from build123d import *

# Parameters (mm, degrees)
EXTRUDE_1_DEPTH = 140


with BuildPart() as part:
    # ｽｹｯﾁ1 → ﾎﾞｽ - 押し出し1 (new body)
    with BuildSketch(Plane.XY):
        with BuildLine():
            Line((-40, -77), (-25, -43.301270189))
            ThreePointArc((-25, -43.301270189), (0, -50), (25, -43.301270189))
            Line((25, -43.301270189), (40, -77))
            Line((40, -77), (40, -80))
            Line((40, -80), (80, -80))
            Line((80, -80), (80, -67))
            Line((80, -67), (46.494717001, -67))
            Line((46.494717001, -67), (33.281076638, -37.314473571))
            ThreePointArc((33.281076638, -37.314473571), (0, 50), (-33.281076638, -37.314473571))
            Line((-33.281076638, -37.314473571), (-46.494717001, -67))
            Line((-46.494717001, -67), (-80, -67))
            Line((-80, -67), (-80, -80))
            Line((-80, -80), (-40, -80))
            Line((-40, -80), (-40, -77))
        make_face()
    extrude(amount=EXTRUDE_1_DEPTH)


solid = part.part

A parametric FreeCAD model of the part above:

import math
import FreeCAD as App
import Part
import Sketcher
from FreeCAD import Vector
Q = App.Units.Quantity

doc = App.newDocument("Part")
body = doc.addObject("PartDesign::Body", "Body")

# Sketch on XY plane
sketch1 = body.newObject("Sketcher::SketchObject", "Sketch")
sketch1.AttachmentSupport = (doc.getObject("XY_Plane"), [""])
sketch1.MapMode = "FlatFace"
sketch1.addGeometry([
    Part.LineSegment(Vector(-40, -77, 0), Vector(-25, -43.3, 0)),  # 0
    Part.ArcOfCircle(Part.Circle(Vector(0, 0, 0), Vector(0, 0, 1), 50), math.radians(-120), math.radians(-60)),  # 1
    Part.LineSegment(Vector(25, -43.3, 0), Vector(40, -77, 0)),  # 2
    Part.LineSegment(Vector(40, -77, 0), Vector(40, -80, 0)),  # 3
    Part.LineSegment(Vector(40, -80, 0), Vector(80, -80, 0)),  # 4
    Part.LineSegment(Vector(80, -80, 0), Vector(80, -67, 0)),  # 5
    Part.LineSegment(Vector(80, -67, 0), Vector(46.5, -67, 0)),  # 6
    Part.LineSegment(Vector(46.5, -67, 0), Vector(33.3, -37.3, 0)),  # 7
    Part.ArcOfCircle(Part.Circle(Vector(0, 0, 0), Vector(0, 0, 1), 50), math.radians(-48), math.radians(228)),  # 8
    Part.LineSegment(Vector(-33.3, -37.3, 0), Vector(-46.5, -67, 0)),  # 9
    Part.LineSegment(Vector(-46.5, -67, 0), Vector(-80, -67, 0)),  # 10
    Part.LineSegment(Vector(-80, -67, 0), Vector(-80, -80, 0)),  # 11
    Part.LineSegment(Vector(-80, -80, 0), Vector(-40, -80, 0)),  # 12
    Part.LineSegment(Vector(-40, -80, 0), Vector(-40, -77, 0)),  # 13
], False)
sketch1.addConstraint([
    Sketcher.Constraint("Coincident", 0, 2, 1, 1),
    Sketcher.Constraint("Coincident", 1, 2, 2, 1),
    Sketcher.Constraint("Coincident", 2, 2, 3, 1),
    Sketcher.Constraint("Coincident", 3, 2, 4, 1),
    Sketcher.Constraint("Coincident", 4, 2, 5, 1),
    Sketcher.Constraint("Coincident", 5, 2, 6, 1),
    Sketcher.Constraint("Coincident", 6, 2, 7, 1),
    Sketcher.Constraint("Coincident", 7, 2, 8, 1),
    Sketcher.Constraint("Coincident", 8, 2, 9, 1),
    Sketcher.Constraint("Coincident", 9, 2, 10, 1),
    Sketcher.Constraint("Coincident", 10, 2, 11, 1),
    Sketcher.Constraint("Coincident", 11, 2, 12, 1),
    Sketcher.Constraint("Coincident", 12, 2, 13, 1),
    Sketcher.Constraint("Coincident", 13, 2, 0, 1),
    Sketcher.Constraint("Vertical", 3),
    Sketcher.Constraint("Horizontal", 4),
    Sketcher.Constraint("Vertical", 5),
    Sketcher.Constraint("Horizontal", 6),
    Sketcher.Constraint("Horizontal", 10),
    Sketcher.Constraint("Vertical", 11),
    Sketcher.Constraint("Horizontal", 12),
    Sketcher.Constraint("Vertical", 13),
    Sketcher.Constraint("Coincident", 1, 3, -1, 1),
    Sketcher.Constraint("Coincident", 8, 3, -1, 1),
    Sketcher.Constraint("Equal", 1, 8),
    Sketcher.Constraint("Symmetric", 6, 2, 9, 2, -2),
    Sketcher.Constraint("Symmetric", 4, 2, 11, 2, -2),
    Sketcher.Constraint("Symmetric", 2, 2, 13, 2, -2),
    Sketcher.Constraint("Parallel", 2, 7),
    Sketcher.Constraint("Parallel", 0, 9),
    Sketcher.Constraint("Horizontal", 0, 2, 1, 2),
    Sketcher.Constraint("Radius", 1, Q("50 mm")),
    Sketcher.Constraint("DistanceX", 4, 1, 4, 2, Q("40 mm")),
    Sketcher.Constraint("DistanceY", 3, 2, 3, 1, Q("3 mm")),
    Sketcher.Constraint("DistanceY", 5, 1, 5, 2, Q("13 mm")),
    Sketcher.Constraint("DistanceX", 0, 2, -1, 1, Q("25 mm")),
    Sketcher.Constraint("DistanceX", -1, 1, 2, 2, Q("40 mm")),
    Sketcher.Constraint("DistanceY", 2, 2, -1, 1, Q("77 mm")),
    Sketcher.Constraint("Distance", 7, Q("32.49355 mm")),
])
pad1 = body.newObject("PartDesign::Pad", "Pad")
pad1.Profile = sketch1
pad1.Length = 140

doc.recompute()
